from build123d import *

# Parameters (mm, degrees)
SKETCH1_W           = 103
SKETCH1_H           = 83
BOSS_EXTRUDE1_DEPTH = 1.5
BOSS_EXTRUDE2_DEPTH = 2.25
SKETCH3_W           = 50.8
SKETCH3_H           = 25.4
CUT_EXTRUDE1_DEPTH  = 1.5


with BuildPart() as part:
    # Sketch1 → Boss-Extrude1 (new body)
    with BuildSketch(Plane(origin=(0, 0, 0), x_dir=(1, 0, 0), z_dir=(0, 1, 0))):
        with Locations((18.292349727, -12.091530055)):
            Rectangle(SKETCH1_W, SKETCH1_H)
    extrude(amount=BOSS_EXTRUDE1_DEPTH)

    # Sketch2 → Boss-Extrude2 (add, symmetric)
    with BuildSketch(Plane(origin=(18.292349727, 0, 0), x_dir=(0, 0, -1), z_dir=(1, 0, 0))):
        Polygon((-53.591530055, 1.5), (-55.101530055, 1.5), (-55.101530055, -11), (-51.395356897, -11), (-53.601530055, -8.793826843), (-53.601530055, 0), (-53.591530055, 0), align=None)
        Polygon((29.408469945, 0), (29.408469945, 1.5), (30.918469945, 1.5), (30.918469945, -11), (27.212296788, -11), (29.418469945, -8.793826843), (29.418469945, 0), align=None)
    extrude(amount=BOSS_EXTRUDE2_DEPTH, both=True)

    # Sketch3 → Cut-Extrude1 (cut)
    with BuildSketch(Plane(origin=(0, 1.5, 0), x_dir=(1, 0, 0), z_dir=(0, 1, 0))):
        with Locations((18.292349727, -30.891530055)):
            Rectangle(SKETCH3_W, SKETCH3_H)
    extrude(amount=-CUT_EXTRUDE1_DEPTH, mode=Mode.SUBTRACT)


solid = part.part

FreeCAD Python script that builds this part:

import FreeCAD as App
import Part
import Sketcher

V = App.Vector


def add_polygon(sketch, points):
    """Adds a closed chain of lines whose ends are joined by coincident constraints."""
    first, n = sketch.GeometryCount, len(points)
    for a, b in zip(points, points[1:] + points[:1]):
        sketch.addGeometry(Part.LineSegment(App.Vector(*a, 0), App.Vector(*b, 0)), False)
    for i in range(n):
        sketch.addConstraint(Sketcher.Constraint("Coincident", first + i, 2, first + (i + 1) % n, 1))

doc = App.newDocument("Part")
body = doc.addObject("PartDesign::Body", "Body")

sketch1 = body.newObject("Sketcher::SketchObject", "Sketch")
sketch1.AttachmentSupport = (doc.getObject("XZ_Plane"), [""])
sketch1.MapMode = "FlatFace"
add_polygon(sketch1, [(-33, -29), (-33, 54), (70, 54), (70, -29)])
sketch1.addConstraint([
    Sketcher.Constraint("Vertical", 0),
    Sketcher.Constraint("Horizontal", 1),
    Sketcher.Constraint("Vertical", 2),
    Sketcher.Constraint("Horizontal", 3),
    Sketcher.Constraint("DistanceX", 1, 1, 1, 2, 103.0),
    Sketcher.Constraint("DistanceY", 0, 1, 0, 2, 83.0),
    Sketcher.Constraint("DistanceX", 0, 2, -1, 1, 33.20765),
    Sketcher.Constraint("DistanceY", -1, 1, 0, 2, 53.59153),
])
pad1 = body.newObject("PartDesign::Pad", "Pad")
pad1.Profile = sketch1
pad1.Length = 1.5
pad1.Reversed = True

sketch2 = body.newObject("Sketcher::SketchObject", "Sketch001")
sketch2.AttachmentSupport = (doc.getObject("YZ_Plane"), [""])
sketch2.MapMode = "FlatFace"
sketch2.AttachmentOffset = App.Placement(V(0, 0, 18.29235), App.Rotation())
add_polygon(sketch2, [(1.5, 53.592), (1.5, 55.102), (-11, 55.102), (-11, 51.395), (-8.794, 53.602), (0, 53.602), (0, 53.592)])
add_polygon(sketch2, [(1.5, -29.408), (0, -29.408), (0, -29.418), (-8.794, -29.418), (-11, -27.212), (-11, -30.918), (1.5, -30.918)])
sketch2.addConstraint([
    Sketcher.Constraint("Vertical", 0),
    Sketcher.Constraint("Horizontal", 1),
    Sketcher.Constraint("Vertical", 2),
    Sketcher.Constraint("Horizontal", 4),
    Sketcher.Constraint("Vertical", 5),
    Sketcher.Constraint("Horizontal", 6),
    Sketcher.Constraint("Horizontal", 7),
    Sketcher.Constraint("Vertical", 8),
    Sketcher.Constraint("Horizontal", 9),
    Sketcher.Constraint("Vertical", 11),
    Sketcher.Constraint("Horizontal", 12),
    Sketcher.Constraint("Vertical", 13),
    Sketcher.Constraint("PointOnObject", 4, 2, -2),
    Sketcher.Constraint("PointOnObject", 7, 2, -2),
    Sketcher.Constraint("Perpendicular", 3, 10),
    Sketcher.Constraint("Vertical", 3, 2, 9, 2),
    Sketcher.Constraint("Vertical", 2, 2, 10, 2),
    Sketcher.Constraint("Vertical", 6, 2, 12, 2),
    Sketcher.Constraint("Equal", 5, 8),
    Sketcher.Constraint("Equal", 2, 11),
    Sketcher.Constraint("Equal", 0, 13),
    Sketcher.Constraint("DistanceX", 1, 2, 1, 1, 12.5),
    Sketcher.Constraint("DistanceX", 6, 1, 6, 2, 1.5),
    Sketcher.Constraint("DistanceY", 7, 2, 5, 2, 83.0),
    Sketcher.Constraint("DistanceY", 0, 1, 0, 2, 1.51),
    Sketcher.Constraint("DistanceY", 5, 2, 5, 1, 0.01),
    Sketcher.Constraint("Distance", 3, 3.12),
    Sketcher.Constraint("DistanceY", -1, 1, 0, 2, 55.10153),
])
pad2 = body.newObject("PartDesign::Pad", "Pad001")
pad2.Profile = sketch2
pad2.Length = 4.5
pad2.Midplane = True

sketch3 = body.newObject("Sketcher::SketchObject", "Sketch002")
sketch3.AttachmentSupport = (doc.getObject("XZ_Plane"), [""])
sketch3.MapMode = "FlatFace"
sketch3.AttachmentOffset = App.Placement(V(0, 0, -1.5), App.Rotation())
add_polygon(sketch3, [(-7, 18), (-7, 44), (44, 44), (44, 18)])
sketch3.addConstraint([
    Sketcher.Constraint("Vertical", 0),
    Sketcher.Constraint("Horizontal", 1),
    Sketcher.Constraint("Vertical", 2),
    Sketcher.Constraint("Horizontal", 3),
    Sketcher.Constraint("DistanceX", 1, 1, 1, 2, 50.8),
    Sketcher.Constraint("DistanceY", 0, 1, 0, 2, 25.4),
    Sketcher.Constraint("DistanceX", 0, 2, -1, 1, 7.10765),
    Sketcher.Constraint("DistanceY", -1, 1, 0, 2, 43.59153),
])
pocket1 = body.newObject("PartDesign::Pocket", "Pocket")
pocket1.Profile = sketch3
pocket1.Length = 1.5
pocket1.Reversed = True

doc.recompute()
